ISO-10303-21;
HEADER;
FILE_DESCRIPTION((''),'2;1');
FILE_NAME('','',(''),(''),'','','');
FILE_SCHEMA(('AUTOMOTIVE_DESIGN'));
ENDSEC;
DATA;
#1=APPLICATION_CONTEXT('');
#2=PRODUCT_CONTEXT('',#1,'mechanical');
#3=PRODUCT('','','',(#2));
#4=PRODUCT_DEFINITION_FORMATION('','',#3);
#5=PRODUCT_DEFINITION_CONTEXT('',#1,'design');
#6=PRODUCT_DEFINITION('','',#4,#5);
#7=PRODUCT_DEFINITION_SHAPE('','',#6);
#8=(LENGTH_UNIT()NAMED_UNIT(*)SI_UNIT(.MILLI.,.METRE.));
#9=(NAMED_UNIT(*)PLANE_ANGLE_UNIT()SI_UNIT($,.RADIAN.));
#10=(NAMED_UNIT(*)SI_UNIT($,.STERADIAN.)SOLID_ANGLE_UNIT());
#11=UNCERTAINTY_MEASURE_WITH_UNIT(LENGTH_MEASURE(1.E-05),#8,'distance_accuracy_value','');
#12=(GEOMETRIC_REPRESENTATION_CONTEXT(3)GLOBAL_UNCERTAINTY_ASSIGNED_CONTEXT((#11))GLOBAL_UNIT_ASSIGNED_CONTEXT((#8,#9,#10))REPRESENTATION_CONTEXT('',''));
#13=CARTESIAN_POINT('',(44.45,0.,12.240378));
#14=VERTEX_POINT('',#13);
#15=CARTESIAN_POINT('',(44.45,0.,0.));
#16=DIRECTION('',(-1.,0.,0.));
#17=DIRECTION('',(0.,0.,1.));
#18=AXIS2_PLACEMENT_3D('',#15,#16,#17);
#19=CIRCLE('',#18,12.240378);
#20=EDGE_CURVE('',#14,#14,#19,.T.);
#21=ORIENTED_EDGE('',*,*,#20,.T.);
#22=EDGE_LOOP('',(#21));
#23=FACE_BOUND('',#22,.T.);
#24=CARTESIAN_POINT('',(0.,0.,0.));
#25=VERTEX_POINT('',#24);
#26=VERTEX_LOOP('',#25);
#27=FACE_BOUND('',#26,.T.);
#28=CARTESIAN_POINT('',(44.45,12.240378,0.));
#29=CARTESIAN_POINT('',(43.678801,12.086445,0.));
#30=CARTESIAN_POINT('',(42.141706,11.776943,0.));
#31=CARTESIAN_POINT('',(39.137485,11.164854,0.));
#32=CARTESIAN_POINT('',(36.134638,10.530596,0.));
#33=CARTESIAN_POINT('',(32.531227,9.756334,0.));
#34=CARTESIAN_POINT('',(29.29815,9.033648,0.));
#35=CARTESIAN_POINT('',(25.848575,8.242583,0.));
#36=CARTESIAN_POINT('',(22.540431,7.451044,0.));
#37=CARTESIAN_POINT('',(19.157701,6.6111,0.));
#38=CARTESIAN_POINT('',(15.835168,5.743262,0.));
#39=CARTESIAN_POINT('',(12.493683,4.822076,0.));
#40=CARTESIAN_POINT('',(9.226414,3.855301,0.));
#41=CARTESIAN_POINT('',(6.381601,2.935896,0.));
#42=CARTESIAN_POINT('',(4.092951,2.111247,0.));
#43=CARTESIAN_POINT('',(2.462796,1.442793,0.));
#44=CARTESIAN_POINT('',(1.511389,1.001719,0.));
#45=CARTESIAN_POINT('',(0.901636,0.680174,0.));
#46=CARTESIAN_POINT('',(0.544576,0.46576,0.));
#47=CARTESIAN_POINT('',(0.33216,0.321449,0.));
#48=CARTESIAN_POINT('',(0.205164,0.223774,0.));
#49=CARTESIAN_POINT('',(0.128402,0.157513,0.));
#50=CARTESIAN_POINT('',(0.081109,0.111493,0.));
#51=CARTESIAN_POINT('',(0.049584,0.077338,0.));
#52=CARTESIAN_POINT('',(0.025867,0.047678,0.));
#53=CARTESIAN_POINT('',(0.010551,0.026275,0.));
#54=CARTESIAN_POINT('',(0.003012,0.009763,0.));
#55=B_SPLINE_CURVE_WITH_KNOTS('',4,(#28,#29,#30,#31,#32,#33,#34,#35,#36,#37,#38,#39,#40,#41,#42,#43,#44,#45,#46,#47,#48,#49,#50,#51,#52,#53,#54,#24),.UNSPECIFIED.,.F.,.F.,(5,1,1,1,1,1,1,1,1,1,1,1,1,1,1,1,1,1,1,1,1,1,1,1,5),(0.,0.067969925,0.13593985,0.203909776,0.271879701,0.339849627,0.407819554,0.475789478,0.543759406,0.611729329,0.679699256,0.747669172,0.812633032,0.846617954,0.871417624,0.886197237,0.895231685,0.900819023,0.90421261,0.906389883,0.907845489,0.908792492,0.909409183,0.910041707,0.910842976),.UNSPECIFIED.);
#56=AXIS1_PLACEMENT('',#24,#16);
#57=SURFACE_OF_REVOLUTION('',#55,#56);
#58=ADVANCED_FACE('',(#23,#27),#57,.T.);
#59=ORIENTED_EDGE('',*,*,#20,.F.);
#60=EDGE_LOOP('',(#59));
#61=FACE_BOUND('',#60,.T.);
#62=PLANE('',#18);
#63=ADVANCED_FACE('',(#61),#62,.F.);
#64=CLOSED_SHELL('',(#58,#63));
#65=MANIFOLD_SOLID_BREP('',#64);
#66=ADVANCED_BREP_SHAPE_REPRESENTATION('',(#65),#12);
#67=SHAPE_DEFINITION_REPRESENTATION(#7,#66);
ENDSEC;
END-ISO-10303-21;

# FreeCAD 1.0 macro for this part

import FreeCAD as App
import Part
import Sketcher

doc = App.newDocument("Part")
body = doc.addObject("PartDesign::Body", "Body")

sketch1 = body.newObject("Sketcher::SketchObject", "Sketch")
sketch1.AttachmentSupport = (doc.getObject("XY_Plane"), [""])
sketch1.MapMode = "FlatFace"
sketch1.addGeometry([
    Part.LineSegment(App.Vector(0, 0, 0), App.Vector(44.45, 0, 0)),
    Part.LineSegment(App.Vector(44.45, 0, 0), App.Vector(44.45, 12.240378, 0)),
    Part.BSplineCurve([App.Vector(0, 0, 0), App.Vector(0.003012, 0.009763, 0), App.Vector(0.010551, 0.026275, 0), App.Vector(0.025867, 0.047678, 0), App.Vector(0.049584, 0.077338, 0), App.Vector(0.081109, 0.111493, 0), App.Vector(0.128402, 0.157513, 0), App.Vector(0.205164, 0.223774, 0), App.Vector(0.33216, 0.321449, 0), App.Vector(0.544576, 0.46576, 0), App.Vector(0.901636, 0.680174, 0), App.Vector(1.511389, 1.001719, 0), App.Vector(2.462796, 1.442793, 0), App.Vector(4.092951, 2.111247, 0), App.Vector(6.381601, 2.935896, 0), App.Vector(9.226413, 3.855301, 0), App.Vector(12.493683, 4.822076, 0), App.Vector(15.835168, 5.743262, 0), App.Vector(19.157701, 6.6111, 0), App.Vector(22.540431, 7.451044, 0), App.Vector(25.848575, 8.242583, 0), App.Vector(29.29815, 9.033648, 0), App.Vector(32.531227, 9.756334, 0), App.Vector(36.134638, 10.530596, 0), App.Vector(39.137485, 11.164854, 0), App.Vector(42.141706, 11.776943, 0), App.Vector(43.678801, 12.086445, 0), App.Vector(44.45, 12.240378, 0)], [5, 1, 1, 1, 1, 1, 1, 1, 1, 1, 1, 1, 1, 1, 1, 1, 1, 1, 1, 1, 1, 1, 1, 1, 5], [0, 0.000801269, 0.001433793, 0.002050484, 0.002997487, 0.004453093, 0.006630366, 0.010023953, 0.015611291, 0.024645739, 0.039425352, 0.064225022, 0.098209944, 0.163173804, 0.23114372, 0.299113647, 0.36708357, 0.435053499, 0.503023422, 0.570993349, 0.638963275, 0.7069332, 0.774903126, 0.842873051, 0.910842976], False, 4, [1, 1, 1, 1, 1, 1, 1, 1, 1, 1, 1, 1, 1, 1, 1, 1, 1, 1, 1, 1, 1, 1, 1, 1, 1, 1, 1, 1], False),
], False)
sketch1.addConstraint([
    Sketcher.Constraint("Block", 2),
    Sketcher.Constraint("Coincident", 0, 2, 1, 1),
    Sketcher.Constraint("Coincident", 1, 2, 2, 2),
    Sketcher.Constraint("Coincident", 2, 1, 0, 1),
    Sketcher.Constraint("Horizontal", 0),
    Sketcher.Constraint("Vertical", 1),
])
revolution = body.newObject("PartDesign::Revolution", "Revolution")
revolution.Profile = sketch1
revolution.ReferenceAxis = (sketch1, ["H_Axis"])
revolution.Angle = 360

doc.recompute()
